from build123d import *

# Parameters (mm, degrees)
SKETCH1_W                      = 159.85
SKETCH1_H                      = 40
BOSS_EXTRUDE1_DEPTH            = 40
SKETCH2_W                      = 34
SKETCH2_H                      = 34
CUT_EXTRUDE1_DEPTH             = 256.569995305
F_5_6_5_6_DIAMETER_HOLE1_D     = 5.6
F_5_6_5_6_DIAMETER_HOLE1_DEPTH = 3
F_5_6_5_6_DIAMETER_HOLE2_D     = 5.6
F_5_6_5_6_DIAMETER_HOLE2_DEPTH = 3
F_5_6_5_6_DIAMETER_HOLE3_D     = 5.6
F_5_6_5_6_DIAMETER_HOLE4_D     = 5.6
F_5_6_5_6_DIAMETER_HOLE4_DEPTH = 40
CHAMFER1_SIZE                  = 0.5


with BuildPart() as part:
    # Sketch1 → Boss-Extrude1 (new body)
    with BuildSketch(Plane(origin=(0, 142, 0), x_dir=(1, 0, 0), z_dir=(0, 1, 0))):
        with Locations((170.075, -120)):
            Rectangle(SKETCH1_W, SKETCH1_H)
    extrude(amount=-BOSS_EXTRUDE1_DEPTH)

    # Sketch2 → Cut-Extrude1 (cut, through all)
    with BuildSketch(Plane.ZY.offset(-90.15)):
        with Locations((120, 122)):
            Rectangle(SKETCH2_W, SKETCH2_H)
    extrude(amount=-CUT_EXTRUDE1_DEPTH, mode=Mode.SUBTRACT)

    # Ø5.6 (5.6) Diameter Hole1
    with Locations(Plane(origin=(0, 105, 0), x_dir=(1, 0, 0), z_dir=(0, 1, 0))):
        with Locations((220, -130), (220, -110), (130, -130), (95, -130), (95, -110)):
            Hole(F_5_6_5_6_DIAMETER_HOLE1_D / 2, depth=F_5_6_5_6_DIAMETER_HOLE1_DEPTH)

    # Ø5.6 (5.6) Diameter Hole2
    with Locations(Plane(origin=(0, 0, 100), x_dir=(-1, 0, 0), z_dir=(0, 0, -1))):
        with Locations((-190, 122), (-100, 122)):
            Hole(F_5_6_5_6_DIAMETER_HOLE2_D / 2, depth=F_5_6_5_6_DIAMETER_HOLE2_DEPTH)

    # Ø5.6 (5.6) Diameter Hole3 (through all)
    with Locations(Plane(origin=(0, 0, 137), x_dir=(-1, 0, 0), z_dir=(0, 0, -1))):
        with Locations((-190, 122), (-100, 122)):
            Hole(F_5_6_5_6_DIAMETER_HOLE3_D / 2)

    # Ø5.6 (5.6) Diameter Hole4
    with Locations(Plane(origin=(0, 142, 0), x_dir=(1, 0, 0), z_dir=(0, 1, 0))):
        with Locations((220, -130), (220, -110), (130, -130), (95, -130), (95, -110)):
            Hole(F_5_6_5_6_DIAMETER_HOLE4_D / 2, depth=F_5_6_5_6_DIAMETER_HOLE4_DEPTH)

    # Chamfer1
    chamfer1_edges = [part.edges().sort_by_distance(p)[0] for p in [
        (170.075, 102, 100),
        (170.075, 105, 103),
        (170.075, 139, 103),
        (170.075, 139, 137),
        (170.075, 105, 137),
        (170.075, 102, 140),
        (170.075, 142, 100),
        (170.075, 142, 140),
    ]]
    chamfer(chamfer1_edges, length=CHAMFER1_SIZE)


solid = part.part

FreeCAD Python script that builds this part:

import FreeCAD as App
import Part
import Sketcher
from FreeCAD import Vector


def edges_at(feature, points):
    """Names of the edges that pass closest to the given points."""
    edges = feature.Shape.Edges
    near = lambda p: min(range(len(edges)), key=lambda i: edges[i].distToShape(Part.Vertex(*p))[0])
    return sorted({f"Edge{near(p) + 1}" for p in points})


def add_polygon(sketch, points):
    """Adds a closed chain of lines whose ends are joined by coincident constraints."""
    first, n = sketch.GeometryCount, len(points)
    for a, b in zip(points, points[1:] + points[:1]):
        sketch.addGeometry(Part.LineSegment(App.Vector(*a, 0), App.Vector(*b, 0)), False)
    for i in range(n):
        sketch.addConstraint(Sketcher.Constraint("Coincident", first + i, 2, first + (i + 1) % n, 1))

doc = App.newDocument("Part")
params = doc.addObject("Spreadsheet::Sheet", "Params")
for row, (alias, value) in enumerate([
    ("sketch1_height", "40 mm"),
    ("sketch1_width", "159.85 mm"),
    ("pad1_length", "40 mm"),
    ("sketch2_width", "34 mm"),
    ("sketch3_diameter", "5.6 mm"),
    ("hole_diameter", "5.6 mm"),
    ("hole_depth", "3 mm"),
    ("sketch4_diameter", "5.6 mm"),
    ("hole2_diameter", "5.6 mm"),
    ("hole2_depth", "3 mm"),
    ("sketch5_diameter", "5.6 mm"),
    ("hole3_diameter", "5.6 mm"),
    ("sketch6_diameter", "5.6 mm"),
    ("hole4_diameter", "5.6 mm"),
    ("hole4_depth", "40 mm"),
    ("chamfer_size", "0.5 mm"),
], start=1):
    params.set(f"A{row}", alias)
    params.set(f"B{row}", "=" + value)
    params.setAlias(f"B{row}", alias)

body = doc.addObject("PartDesign::Body", "Body")

sketch1 = body.newObject("Sketcher::SketchObject", "Sketch")
sketch1.AttachmentSupport = (doc.getObject("XZ_Plane"), [""])
sketch1.MapMode = "FlatFace"
sketch1.AttachmentOffset = App.Placement(Vector(0, 0, -142), App.Rotation())
add_polygon(sketch1, [(90.15, 100), (90.15, 140), (250, 140), (250, 100)])
sketch1.addConstraint(Sketcher.Constraint("Vertical", 0))
sketch1.addConstraint(Sketcher.Constraint("Horizontal", 1))
sketch1.addConstraint(Sketcher.Constraint("Vertical", 2))
sketch1.addConstraint(Sketcher.Constraint("Horizontal", 3))
sketch1.addConstraint(Sketcher.Constraint("DistanceY", 0, 1, 0, 2, 40.0))
sketch1.addConstraint(Sketcher.Constraint("DistanceY", -1, 1, 0, 2, 140.0))
sketch1.addConstraint(Sketcher.Constraint("DistanceX", -1, 1, 1, 2, 250.0))
sketch1.addConstraint(Sketcher.Constraint("DistanceX", 1, 1, 1, 2, 159.85))
sketch1.setExpression("Constraints[8]", "Params.sketch1_height")
sketch1.setExpression("Constraints[11]", "Params.sketch1_width")
pad1 = body.newObject("PartDesign::Pad", "Pad")
pad1.Profile = sketch1
pad1.setExpression("Length", "Params.pad1_length")

sketch2 = body.newObject("Sketcher::SketchObject", "Sketch001")
sketch2.AttachmentSupport = (doc.getObject("YZ_Plane"), [""])
sketch2.MapMode = "FlatFace"
sketch2.AttachmentOffset = App.Placement(Vector(0, 0, 90.15), App.Rotation())
add_polygon(sketch2, [(139, 103), (105, 103), (105, 137), (139, 137)])
sketch2.addConstraint(Sketcher.Constraint("Horizontal", 0))
sketch2.addConstraint(Sketcher.Constraint("Vertical", 1))
sketch2.addConstraint(Sketcher.Constraint("Horizontal", 2))
sketch2.addConstraint(Sketcher.Constraint("Vertical", 3))
sketch2.addConstraint(Sketcher.Constraint("Equal", 2, 1))
sketch2.addConstraint(Sketcher.Constraint("DistanceX", 0, 2, 0, 1, 34.0))
sketch2.addConstraint(Sketcher.Constraint("DistanceX", -1, 1, 0, 2, 105.0))
sketch2.addConstraint(Sketcher.Constraint("DistanceY", -1, 1, 0, 2, 103.0))
sketch2.setExpression("Constraints[9]", "Params.sketch2_width")
pocket1 = body.newObject("PartDesign::Pocket", "Pocket")
pocket1.Profile = sketch2
pocket1.Type = "ThroughAll"
pocket1.Reversed = True

sketch3 = body.newObject("Sketcher::SketchObject", "Sketch002")
sketch3.AttachmentSupport = (doc.getObject("XZ_Plane"), [""])
sketch3.MapMode = "FlatFace"
sketch3.AttachmentOffset = App.Placement(Vector(0, 0, -105), App.Rotation())
sketch3.addGeometry(Part.Circle(Vector(220, 130, 0), Vector(0, 0, 1), 2.8), False)
sketch3.addGeometry(Part.Circle(Vector(220, 110, 0), Vector(0, 0, 1), 2.8), False)
sketch3.addGeometry(Part.Circle(Vector(130, 130, 0), Vector(0, 0, 1), 2.8), False)
sketch3.addGeometry(Part.Circle(Vector(95, 130, 0), Vector(0, 0, 1), 2.8), False)
sketch3.addGeometry(Part.Circle(Vector(95, 110, 0), Vector(0, 0, 1), 2.8), False)
sketch3.addConstraint(Sketcher.Constraint("Equal", 0, 1))
sketch3.addConstraint(Sketcher.Constraint("Equal", 1, 2))
sketch3.addConstraint(Sketcher.Constraint("Equal", 2, 3))
sketch3.addConstraint(Sketcher.Constraint("Equal", 3, 4))
sketch3.addConstraint(Sketcher.Constraint("Horizontal", 0, 3, 2, 3))
sketch3.addConstraint(Sketcher.Constraint("Horizontal", 2, 3, 3, 3))
sketch3.addConstraint(Sketcher.Constraint("Horizontal", 1, 3, 4, 3))
sketch3.addConstraint(Sketcher.Constraint("Vertical", 0, 3, 1, 3))
sketch3.addConstraint(Sketcher.Constraint("Vertical", 3, 3, 4, 3))
sketch3.addConstraint(Sketcher.Constraint("Diameter", 0, 5.6))
sketch3.addConstraint(Sketcher.Constraint("DistanceX", -1, 1, 0, 3, 220.0))
sketch3.addConstraint(Sketcher.Constraint("DistanceY", -1, 1, 0, 3, 130.0))
sketch3.addConstraint(Sketcher.Constraint("DistanceY", -1, 1, 1, 3, 110.0))
sketch3.addConstraint(Sketcher.Constraint("DistanceX", -1, 1, 2, 3, 130.0))
sketch3.addConstraint(Sketcher.Constraint("DistanceX", -1, 1, 3, 3, 95.0))
sketch3.setExpression("Constraints[9]", "Params.sketch3_diameter")
doc.recompute()
hole = body.newObject("PartDesign::Hole", "Hole")
hole.Profile = sketch3
hole.ThreadType = "None"
hole.setExpression("Diameter", "Params.hole_diameter")
hole.DepthType = "Dimension"
hole.setExpression("Depth", "Params.hole_depth")
hole.DrillPoint = "Flat"
hole.Reversed = True

sketch4 = body.newObject("Sketcher::SketchObject", "Sketch003")
sketch4.AttachmentSupport = (doc.getObject("XY_Plane"), [""])
sketch4.MapMode = "FlatFace"
sketch4.AttachmentOffset = App.Placement(Vector(0, 0, 100), App.Rotation())
sketch4.addGeometry(Part.Circle(Vector(190, 122, 0), Vector(0, 0, 1), 2.8), False)
sketch4.addGeometry(Part.Circle(Vector(100, 122, 0), Vector(0, 0, 1), 2.8), False)
sketch4.addConstraint(Sketcher.Constraint("Equal", 0, 1))
sketch4.addConstraint(Sketcher.Constraint("Horizontal", 0, 3, 1, 3))
sketch4.addConstraint(Sketcher.Constraint("Diameter", 0, 5.6))
sketch4.addConstraint(Sketcher.Constraint("DistanceX", -1, 1, 0, 3, 190.0))
sketch4.addConstraint(Sketcher.Constraint("DistanceY", -1, 1, 0, 3, 122.0))
sketch4.addConstraint(Sketcher.Constraint("DistanceX", -1, 1, 1, 3, 100.0))
sketch4.setExpression("Constraints[2]", "Params.sketch4_diameter")
doc.recompute()
hole2 = body.newObject("PartDesign::Hole", "Hole001")
hole2.Profile = sketch4
hole2.ThreadType = "None"
hole2.setExpression("Diameter", "Params.hole2_diameter")
hole2.DepthType = "Dimension"
hole2.setExpression("Depth", "Params.hole2_depth")
hole2.DrillPoint = "Flat"
hole2.Reversed = True

sketch5 = body.newObject("Sketcher::SketchObject", "Sketch004")
sketch5.AttachmentSupport = (doc.getObject("XY_Plane"), [""])
sketch5.MapMode = "FlatFace"
sketch5.AttachmentOffset = App.Placement(Vector(0, 0, 137), App.Rotation())
sketch5.addGeometry(Part.Circle(Vector(190, 122, 0), Vector(0, 0, 1), 2.8), False)
sketch5.addGeometry(Part.Circle(Vector(100, 122, 0), Vector(0, 0, 1), 2.8), False)
sketch5.addConstraint(Sketcher.Constraint("Equal", 0, 1))
sketch5.addConstraint(Sketcher.Constraint("Horizontal", 0, 3, 1, 3))
sketch5.addConstraint(Sketcher.Constraint("Diameter", 0, 5.6))
sketch5.addConstraint(Sketcher.Constraint("DistanceX", -1, 1, 0, 3, 190.0))
sketch5.addConstraint(Sketcher.Constraint("DistanceY", -1, 1, 0, 3, 122.0))
sketch5.addConstraint(Sketcher.Constraint("DistanceX", -1, 1, 1, 3, 100.0))
sketch5.setExpression("Constraints[2]", "Params.sketch5_diameter")
doc.recompute()
hole3 = body.newObject("PartDesign::Hole", "Hole002")
hole3.Profile = sketch5
hole3.ThreadType = "None"
hole3.setExpression("Diameter", "Params.hole3_diameter")
hole3.DepthType = "ThroughAll"
hole3.Reversed = True

sketch6 = body.newObject("Sketcher::SketchObject", "Sketch005")
sketch6.AttachmentSupport = (doc.getObject("XZ_Plane"), [""])
sketch6.MapMode = "FlatFace"
sketch6.AttachmentOffset = App.Placement(Vector(0, 0, -142), App.Rotation())
sketch6.addGeometry(Part.Circle(Vector(220, 130, 0), Vector(0, 0, 1), 2.8), False)
sketch6.addGeometry(Part.Circle(Vector(220, 110, 0), Vector(0, 0, 1), 2.8), False)
sketch6.addGeometry(Part.Circle(Vector(130, 130, 0), Vector(0, 0, 1), 2.8), False)
sketch6.addGeometry(Part.Circle(Vector(95, 130, 0), Vector(0, 0, 1), 2.8), False)
sketch6.addGeometry(Part.Circle(Vector(95, 110, 0), Vector(0, 0, 1), 2.8), False)
sketch6.addConstraint(Sketcher.Constraint("Equal", 0, 1))
sketch6.addConstraint(Sketcher.Constraint("Equal", 1, 2))
sketch6.addConstraint(Sketcher.Constraint("Equal", 2, 3))
sketch6.addConstraint(Sketcher.Constraint("Equal", 3, 4))
sketch6.addConstraint(Sketcher.Constraint("Horizontal", 0, 3, 2, 3))
sketch6.addConstraint(Sketcher.Constraint("Horizontal", 2, 3, 3, 3))
sketch6.addConstraint(Sketcher.Constraint("Horizontal", 1, 3, 4, 3))
sketch6.addConstraint(Sketcher.Constraint("Vertical", 0, 3, 1, 3))
sketch6.addConstraint(Sketcher.Constraint("Vertical", 3, 3, 4, 3))
sketch6.addConstraint(Sketcher.Constraint("Diameter", 0, 5.6))
sketch6.addConstraint(Sketcher.Constraint("DistanceX", -1, 1, 0, 3, 220.0))
sketch6.addConstraint(Sketcher.Constraint("DistanceY", -1, 1, 0, 3, 130.0))
sketch6.addConstraint(Sketcher.Constraint("DistanceY", -1, 1, 1, 3, 110.0))
sketch6.addConstraint(Sketcher.Constraint("DistanceX", -1, 1, 2, 3, 130.0))
sketch6.addConstraint(Sketcher.Constraint("DistanceX", -1, 1, 3, 3, 95.0))
sketch6.setExpression("Constraints[9]", "Params.sketch6_diameter")
doc.recompute()
hole4 = body.newObject("PartDesign::Hole", "Hole003")
hole4.Profile = sketch6
hole4.ThreadType = "None"
hole4.setExpression("Diameter", "Params.hole4_diameter")
hole4.DepthType = "Dimension"
hole4.setExpression("Depth", "Params.hole4_depth")
hole4.DrillPoint = "Flat"
hole4.Reversed = True
doc.recompute()

chamfer = body.newObject("PartDesign::Chamfer", "Chamfer")
chamfer.Base = (hole4, edges_at(hole4, [
    (170.075, 102, 100),
    (170.075, 105, 103),
    (170.075, 139, 103),
    (170.075, 139, 137),
    (170.075, 105, 137),
    (170.075, 102, 140),
    (170.075, 142, 100),
    (170.075, 142, 140),
]))
chamfer.setExpression("Size", "Params.chamfer_size")

doc.recompute()
